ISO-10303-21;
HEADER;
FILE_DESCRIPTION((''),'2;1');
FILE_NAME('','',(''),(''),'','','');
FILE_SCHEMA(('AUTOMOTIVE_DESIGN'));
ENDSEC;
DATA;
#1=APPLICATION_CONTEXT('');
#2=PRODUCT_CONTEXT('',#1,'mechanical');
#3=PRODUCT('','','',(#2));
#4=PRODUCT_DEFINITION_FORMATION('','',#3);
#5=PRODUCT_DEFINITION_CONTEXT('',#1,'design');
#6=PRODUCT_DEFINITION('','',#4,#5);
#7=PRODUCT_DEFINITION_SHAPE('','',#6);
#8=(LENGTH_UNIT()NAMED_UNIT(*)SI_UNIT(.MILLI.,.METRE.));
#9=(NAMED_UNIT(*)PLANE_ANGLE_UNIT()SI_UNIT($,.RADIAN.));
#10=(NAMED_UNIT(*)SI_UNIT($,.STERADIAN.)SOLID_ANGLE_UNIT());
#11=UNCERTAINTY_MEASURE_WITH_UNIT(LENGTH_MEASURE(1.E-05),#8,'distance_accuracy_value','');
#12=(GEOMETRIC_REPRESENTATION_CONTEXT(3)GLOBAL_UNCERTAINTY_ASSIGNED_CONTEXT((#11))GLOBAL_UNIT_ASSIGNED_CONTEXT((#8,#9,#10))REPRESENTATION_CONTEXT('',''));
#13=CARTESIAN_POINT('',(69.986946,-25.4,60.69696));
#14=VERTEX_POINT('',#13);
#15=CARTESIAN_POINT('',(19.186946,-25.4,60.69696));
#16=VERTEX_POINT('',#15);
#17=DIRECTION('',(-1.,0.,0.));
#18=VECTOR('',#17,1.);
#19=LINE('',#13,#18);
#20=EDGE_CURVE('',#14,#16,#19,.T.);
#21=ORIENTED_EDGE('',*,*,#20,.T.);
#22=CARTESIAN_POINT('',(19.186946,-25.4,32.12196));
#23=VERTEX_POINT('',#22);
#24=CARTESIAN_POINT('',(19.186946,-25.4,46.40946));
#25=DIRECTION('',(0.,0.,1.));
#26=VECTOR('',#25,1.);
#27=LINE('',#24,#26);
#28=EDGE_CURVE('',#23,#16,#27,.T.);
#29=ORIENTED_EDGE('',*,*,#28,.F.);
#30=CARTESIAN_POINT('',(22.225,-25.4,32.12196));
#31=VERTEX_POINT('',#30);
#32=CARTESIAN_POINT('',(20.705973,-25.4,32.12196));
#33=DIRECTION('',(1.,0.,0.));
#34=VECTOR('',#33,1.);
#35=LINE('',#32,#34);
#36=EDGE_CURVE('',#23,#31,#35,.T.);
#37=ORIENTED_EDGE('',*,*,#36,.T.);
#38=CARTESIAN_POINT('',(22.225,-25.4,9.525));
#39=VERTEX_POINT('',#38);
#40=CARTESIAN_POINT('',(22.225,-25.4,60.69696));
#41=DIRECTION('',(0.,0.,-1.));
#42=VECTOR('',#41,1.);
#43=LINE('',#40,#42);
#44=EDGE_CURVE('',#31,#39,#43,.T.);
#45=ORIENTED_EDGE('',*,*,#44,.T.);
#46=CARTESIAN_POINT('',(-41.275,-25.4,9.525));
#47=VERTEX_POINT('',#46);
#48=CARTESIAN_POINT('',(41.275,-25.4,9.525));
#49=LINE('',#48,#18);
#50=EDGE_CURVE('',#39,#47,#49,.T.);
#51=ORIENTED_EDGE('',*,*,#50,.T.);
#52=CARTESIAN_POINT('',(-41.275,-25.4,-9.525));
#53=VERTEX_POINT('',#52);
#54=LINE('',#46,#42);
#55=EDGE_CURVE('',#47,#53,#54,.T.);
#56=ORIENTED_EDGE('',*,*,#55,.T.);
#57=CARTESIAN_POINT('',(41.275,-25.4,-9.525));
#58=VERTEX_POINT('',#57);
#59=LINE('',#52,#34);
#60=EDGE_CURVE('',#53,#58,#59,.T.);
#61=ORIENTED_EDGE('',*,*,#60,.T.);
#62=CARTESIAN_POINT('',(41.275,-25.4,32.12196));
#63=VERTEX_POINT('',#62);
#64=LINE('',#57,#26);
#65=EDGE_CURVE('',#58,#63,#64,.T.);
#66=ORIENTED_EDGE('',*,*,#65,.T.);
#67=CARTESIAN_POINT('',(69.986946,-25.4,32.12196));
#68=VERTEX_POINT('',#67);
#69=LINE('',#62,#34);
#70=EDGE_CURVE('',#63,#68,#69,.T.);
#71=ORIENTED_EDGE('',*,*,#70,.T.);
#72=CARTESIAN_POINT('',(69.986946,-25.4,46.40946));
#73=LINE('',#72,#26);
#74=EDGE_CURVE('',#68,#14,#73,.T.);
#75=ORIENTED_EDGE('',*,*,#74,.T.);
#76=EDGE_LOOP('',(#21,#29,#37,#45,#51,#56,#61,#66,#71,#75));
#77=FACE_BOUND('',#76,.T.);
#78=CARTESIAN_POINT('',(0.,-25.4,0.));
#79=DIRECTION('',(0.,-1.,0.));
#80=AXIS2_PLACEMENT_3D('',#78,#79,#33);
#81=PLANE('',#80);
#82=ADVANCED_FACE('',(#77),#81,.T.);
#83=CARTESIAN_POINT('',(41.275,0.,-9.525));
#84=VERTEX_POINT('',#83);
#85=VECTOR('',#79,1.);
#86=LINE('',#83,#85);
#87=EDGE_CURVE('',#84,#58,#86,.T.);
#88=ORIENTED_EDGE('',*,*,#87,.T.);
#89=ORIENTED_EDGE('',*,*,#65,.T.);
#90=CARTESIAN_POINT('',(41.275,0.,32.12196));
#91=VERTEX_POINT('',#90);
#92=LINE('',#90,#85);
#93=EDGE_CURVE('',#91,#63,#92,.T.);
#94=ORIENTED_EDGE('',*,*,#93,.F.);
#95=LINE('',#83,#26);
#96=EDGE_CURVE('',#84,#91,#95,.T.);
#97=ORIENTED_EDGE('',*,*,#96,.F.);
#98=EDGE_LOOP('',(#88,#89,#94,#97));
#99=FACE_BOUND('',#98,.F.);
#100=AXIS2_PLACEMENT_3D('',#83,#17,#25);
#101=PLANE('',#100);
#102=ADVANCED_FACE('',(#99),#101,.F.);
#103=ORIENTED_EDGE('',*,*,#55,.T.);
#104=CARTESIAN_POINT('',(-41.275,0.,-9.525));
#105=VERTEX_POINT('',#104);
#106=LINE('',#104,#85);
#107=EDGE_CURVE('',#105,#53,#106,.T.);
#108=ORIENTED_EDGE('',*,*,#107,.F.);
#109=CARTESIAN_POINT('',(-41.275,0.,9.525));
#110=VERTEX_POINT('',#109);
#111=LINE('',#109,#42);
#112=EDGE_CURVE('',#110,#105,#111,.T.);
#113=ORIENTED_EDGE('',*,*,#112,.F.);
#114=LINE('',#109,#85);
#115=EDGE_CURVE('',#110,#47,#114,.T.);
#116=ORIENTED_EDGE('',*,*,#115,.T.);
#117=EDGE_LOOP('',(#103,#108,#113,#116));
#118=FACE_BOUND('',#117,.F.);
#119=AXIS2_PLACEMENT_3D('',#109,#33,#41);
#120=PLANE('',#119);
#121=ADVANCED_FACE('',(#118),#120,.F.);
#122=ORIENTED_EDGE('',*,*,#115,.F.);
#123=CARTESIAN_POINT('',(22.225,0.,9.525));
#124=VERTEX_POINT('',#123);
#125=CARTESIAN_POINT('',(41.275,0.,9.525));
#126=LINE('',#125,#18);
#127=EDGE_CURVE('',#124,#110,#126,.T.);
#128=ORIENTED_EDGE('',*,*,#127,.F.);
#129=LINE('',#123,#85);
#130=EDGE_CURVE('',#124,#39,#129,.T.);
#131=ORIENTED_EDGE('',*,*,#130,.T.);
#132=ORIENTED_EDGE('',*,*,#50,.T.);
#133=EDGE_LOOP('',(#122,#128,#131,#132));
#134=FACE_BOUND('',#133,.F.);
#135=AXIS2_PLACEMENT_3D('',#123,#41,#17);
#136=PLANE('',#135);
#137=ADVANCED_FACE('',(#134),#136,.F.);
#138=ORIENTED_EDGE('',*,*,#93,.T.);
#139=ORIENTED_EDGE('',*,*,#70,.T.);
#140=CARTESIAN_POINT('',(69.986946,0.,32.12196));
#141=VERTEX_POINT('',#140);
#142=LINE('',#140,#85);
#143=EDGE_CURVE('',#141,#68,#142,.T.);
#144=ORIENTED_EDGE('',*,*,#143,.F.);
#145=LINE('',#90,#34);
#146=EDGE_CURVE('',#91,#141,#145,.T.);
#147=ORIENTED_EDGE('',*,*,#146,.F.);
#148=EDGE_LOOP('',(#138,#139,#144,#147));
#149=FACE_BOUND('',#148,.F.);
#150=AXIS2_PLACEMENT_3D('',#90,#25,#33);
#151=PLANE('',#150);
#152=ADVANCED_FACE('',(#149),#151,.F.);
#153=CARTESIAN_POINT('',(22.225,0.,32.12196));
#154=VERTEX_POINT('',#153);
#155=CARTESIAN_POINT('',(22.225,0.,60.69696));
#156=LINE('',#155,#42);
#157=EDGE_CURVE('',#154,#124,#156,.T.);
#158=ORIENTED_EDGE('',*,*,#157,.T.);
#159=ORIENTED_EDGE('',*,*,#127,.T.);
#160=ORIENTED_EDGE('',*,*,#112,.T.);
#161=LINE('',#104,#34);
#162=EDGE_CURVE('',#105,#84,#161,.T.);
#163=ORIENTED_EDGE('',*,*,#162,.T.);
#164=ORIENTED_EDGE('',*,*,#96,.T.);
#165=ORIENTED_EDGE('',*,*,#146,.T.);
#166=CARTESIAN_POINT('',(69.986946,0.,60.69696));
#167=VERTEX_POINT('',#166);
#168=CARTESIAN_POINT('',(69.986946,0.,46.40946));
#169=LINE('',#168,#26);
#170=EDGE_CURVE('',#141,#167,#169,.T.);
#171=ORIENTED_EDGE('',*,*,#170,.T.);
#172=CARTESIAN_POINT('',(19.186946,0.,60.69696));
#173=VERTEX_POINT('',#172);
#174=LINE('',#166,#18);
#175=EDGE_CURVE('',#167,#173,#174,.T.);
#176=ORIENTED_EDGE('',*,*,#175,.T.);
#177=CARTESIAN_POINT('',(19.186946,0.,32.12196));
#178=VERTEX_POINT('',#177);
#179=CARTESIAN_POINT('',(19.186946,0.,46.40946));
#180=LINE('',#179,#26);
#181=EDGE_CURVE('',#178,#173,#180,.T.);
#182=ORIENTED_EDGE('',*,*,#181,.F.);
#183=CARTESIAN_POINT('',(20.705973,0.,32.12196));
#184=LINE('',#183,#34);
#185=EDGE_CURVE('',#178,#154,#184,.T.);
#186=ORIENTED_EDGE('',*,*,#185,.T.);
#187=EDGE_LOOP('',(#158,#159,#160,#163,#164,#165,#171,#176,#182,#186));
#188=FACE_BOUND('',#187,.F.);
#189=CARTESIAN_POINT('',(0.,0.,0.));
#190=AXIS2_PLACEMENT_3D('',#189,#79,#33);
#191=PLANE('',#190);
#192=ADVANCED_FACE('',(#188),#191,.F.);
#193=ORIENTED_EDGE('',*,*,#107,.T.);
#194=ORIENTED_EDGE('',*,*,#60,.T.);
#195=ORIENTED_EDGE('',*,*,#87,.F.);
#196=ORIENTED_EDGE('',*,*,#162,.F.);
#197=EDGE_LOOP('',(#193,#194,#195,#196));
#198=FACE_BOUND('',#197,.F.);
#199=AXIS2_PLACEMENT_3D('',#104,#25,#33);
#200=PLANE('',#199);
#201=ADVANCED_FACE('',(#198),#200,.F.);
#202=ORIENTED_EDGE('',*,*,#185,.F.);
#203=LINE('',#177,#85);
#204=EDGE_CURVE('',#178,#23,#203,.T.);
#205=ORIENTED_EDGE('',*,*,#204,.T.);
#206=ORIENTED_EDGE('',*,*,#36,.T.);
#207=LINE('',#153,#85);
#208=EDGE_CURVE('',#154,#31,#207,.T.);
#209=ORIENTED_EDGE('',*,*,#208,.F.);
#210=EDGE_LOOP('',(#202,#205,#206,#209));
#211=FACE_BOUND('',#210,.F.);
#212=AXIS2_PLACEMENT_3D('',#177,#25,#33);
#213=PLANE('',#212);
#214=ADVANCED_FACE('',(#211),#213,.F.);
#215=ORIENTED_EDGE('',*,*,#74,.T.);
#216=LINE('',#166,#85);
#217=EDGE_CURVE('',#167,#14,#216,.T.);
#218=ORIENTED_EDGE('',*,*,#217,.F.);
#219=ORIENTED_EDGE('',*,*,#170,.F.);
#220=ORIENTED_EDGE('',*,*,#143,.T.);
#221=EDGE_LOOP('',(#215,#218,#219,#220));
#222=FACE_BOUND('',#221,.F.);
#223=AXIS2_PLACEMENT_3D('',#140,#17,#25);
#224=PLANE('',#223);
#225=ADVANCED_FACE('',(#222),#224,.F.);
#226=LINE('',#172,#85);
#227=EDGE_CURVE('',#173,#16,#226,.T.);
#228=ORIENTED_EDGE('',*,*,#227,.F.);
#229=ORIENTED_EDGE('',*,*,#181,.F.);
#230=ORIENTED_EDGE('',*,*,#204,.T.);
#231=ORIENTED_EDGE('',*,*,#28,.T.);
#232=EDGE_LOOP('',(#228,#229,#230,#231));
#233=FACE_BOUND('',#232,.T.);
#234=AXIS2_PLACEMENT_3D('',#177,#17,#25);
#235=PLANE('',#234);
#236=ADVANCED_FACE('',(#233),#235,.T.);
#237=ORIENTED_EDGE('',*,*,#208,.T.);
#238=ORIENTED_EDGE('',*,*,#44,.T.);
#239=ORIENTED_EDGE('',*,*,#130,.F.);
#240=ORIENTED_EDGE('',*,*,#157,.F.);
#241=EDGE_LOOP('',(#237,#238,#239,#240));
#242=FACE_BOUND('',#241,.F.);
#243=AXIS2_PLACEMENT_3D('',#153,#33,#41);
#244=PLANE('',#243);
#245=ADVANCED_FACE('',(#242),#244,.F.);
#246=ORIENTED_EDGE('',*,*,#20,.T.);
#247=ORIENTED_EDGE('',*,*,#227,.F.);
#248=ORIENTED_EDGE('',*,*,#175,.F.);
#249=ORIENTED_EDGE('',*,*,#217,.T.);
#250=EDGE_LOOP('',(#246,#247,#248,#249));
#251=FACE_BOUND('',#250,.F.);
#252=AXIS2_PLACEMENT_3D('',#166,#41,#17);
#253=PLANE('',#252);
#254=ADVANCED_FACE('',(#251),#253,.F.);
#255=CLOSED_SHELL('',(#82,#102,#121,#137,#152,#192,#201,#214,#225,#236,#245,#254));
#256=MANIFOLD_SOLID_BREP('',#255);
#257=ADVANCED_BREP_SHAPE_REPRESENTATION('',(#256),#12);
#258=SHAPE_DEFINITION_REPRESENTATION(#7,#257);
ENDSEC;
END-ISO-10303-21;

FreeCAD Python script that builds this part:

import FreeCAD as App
import Part
import Sketcher
Q = App.Units.Quantity


def add_polygon(sketch, points):
    """Adds a closed chain of lines whose ends are joined by coincident constraints."""
    first, n = sketch.GeometryCount, len(points)
    for a, b in zip(points, points[1:] + points[:1]):
        sketch.addGeometry(Part.LineSegment(App.Vector(*a, 0), App.Vector(*b, 0)), False)
    for i in range(n):
        sketch.addConstraint(Sketcher.Constraint("Coincident", first + i, 2, first + (i + 1) % n, 1))

doc = App.newDocument("Part")
body = doc.addObject("PartDesign::Body", "Body")

sketch1 = body.newObject("Sketcher::SketchObject", "Sketch")
sketch1.AttachmentSupport = (doc.getObject("XZ_Plane"), [""])
sketch1.MapMode = "FlatFace"
add_polygon(sketch1, [(-41.3, 9.5), (-41.3, -9.5), (41.3, -9.5), (41.3, 32.1), (70, 32.1), (70, 60.7), (19.2, 60.7), (19.2, 32.1), (22.2, 32.1), (22.2, 9.5)])
sketch1.addConstraint([
    Sketcher.Constraint("Vertical", 0),
    Sketcher.Constraint("Horizontal", 1),
    Sketcher.Constraint("Vertical", 2),
    Sketcher.Constraint("Horizontal", 3),
    Sketcher.Constraint("Vertical", 4),
    Sketcher.Constraint("Horizontal", 5),
    Sketcher.Constraint("Vertical", 6),
    Sketcher.Constraint("Horizontal", 7),
    Sketcher.Constraint("Vertical", 8),
    Sketcher.Constraint("Horizontal", 9),
    Sketcher.Constraint("Symmetric", 1, 2, 9, 2, -1, 1),
    Sketcher.Constraint("Horizontal", 3, 2, 6, 2),
    Sketcher.Constraint("DistanceX", 5, 2, 5, 1, Q("2 in")),
    Sketcher.Constraint("DistanceX", 9, 2, 9, 1, Q("2.5 in")),
    Sketcher.Constraint("DistanceX", 1, 1, 1, 2, Q("3.25 in")),
    Sketcher.Constraint("DistanceY", 0, 2, 0, 1, Q("0.75 in")),
    Sketcher.Constraint("DistanceY", 4, 1, 4, 2, Q("1.125 in")),
    Sketcher.Constraint("DistanceY", 2, 1, 2, 2, Q("41.64696 mm")),
    Sketcher.Constraint("DistanceX", 3, 1, 3, 2, Q("28.711946 mm")),
])
pad1 = body.newObject("PartDesign::Pad", "Pad")
pad1.Profile = sketch1
pad1.Length = Q("1 in")

doc.recompute()
